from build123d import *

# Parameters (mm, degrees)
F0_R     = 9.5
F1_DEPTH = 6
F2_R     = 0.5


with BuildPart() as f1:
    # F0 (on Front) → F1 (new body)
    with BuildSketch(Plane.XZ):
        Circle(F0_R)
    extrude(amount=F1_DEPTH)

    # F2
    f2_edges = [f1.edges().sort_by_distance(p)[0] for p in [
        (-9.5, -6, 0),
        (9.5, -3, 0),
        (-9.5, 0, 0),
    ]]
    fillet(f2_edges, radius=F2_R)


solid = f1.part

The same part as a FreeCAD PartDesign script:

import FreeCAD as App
import Part
import Sketcher
from FreeCAD import Vector

doc = App.newDocument("Part")
body = doc.addObject("PartDesign::Body", "Body")

sketch1 = body.newObject("Sketcher::SketchObject", "Sketch")
sketch1.AttachmentSupport = (doc.getObject("XZ_Plane"), [""])
sketch1.MapMode = "FlatFace"
sketch1.addGeometry(Part.Circle(Vector(0, 0, 0), Vector(0, 0, 1), 10), False)
sketch1.addConstraint(Sketcher.Constraint("Coincident", 0, 3, -1, 1))
sketch1.addConstraint(Sketcher.Constraint("Diameter", 0, 19.0))
pad1 = body.newObject("PartDesign::Pad", "Pad")
pad1.Profile = sketch1
pad1.Length = 6
doc.recompute()

fillet = body.newObject("PartDesign::Fillet", "Fillet")
fillet.Base = (pad1, ["Edge1"])
fillet.UseAllEdges = True
fillet.Radius = 0.5

doc.recompute()
